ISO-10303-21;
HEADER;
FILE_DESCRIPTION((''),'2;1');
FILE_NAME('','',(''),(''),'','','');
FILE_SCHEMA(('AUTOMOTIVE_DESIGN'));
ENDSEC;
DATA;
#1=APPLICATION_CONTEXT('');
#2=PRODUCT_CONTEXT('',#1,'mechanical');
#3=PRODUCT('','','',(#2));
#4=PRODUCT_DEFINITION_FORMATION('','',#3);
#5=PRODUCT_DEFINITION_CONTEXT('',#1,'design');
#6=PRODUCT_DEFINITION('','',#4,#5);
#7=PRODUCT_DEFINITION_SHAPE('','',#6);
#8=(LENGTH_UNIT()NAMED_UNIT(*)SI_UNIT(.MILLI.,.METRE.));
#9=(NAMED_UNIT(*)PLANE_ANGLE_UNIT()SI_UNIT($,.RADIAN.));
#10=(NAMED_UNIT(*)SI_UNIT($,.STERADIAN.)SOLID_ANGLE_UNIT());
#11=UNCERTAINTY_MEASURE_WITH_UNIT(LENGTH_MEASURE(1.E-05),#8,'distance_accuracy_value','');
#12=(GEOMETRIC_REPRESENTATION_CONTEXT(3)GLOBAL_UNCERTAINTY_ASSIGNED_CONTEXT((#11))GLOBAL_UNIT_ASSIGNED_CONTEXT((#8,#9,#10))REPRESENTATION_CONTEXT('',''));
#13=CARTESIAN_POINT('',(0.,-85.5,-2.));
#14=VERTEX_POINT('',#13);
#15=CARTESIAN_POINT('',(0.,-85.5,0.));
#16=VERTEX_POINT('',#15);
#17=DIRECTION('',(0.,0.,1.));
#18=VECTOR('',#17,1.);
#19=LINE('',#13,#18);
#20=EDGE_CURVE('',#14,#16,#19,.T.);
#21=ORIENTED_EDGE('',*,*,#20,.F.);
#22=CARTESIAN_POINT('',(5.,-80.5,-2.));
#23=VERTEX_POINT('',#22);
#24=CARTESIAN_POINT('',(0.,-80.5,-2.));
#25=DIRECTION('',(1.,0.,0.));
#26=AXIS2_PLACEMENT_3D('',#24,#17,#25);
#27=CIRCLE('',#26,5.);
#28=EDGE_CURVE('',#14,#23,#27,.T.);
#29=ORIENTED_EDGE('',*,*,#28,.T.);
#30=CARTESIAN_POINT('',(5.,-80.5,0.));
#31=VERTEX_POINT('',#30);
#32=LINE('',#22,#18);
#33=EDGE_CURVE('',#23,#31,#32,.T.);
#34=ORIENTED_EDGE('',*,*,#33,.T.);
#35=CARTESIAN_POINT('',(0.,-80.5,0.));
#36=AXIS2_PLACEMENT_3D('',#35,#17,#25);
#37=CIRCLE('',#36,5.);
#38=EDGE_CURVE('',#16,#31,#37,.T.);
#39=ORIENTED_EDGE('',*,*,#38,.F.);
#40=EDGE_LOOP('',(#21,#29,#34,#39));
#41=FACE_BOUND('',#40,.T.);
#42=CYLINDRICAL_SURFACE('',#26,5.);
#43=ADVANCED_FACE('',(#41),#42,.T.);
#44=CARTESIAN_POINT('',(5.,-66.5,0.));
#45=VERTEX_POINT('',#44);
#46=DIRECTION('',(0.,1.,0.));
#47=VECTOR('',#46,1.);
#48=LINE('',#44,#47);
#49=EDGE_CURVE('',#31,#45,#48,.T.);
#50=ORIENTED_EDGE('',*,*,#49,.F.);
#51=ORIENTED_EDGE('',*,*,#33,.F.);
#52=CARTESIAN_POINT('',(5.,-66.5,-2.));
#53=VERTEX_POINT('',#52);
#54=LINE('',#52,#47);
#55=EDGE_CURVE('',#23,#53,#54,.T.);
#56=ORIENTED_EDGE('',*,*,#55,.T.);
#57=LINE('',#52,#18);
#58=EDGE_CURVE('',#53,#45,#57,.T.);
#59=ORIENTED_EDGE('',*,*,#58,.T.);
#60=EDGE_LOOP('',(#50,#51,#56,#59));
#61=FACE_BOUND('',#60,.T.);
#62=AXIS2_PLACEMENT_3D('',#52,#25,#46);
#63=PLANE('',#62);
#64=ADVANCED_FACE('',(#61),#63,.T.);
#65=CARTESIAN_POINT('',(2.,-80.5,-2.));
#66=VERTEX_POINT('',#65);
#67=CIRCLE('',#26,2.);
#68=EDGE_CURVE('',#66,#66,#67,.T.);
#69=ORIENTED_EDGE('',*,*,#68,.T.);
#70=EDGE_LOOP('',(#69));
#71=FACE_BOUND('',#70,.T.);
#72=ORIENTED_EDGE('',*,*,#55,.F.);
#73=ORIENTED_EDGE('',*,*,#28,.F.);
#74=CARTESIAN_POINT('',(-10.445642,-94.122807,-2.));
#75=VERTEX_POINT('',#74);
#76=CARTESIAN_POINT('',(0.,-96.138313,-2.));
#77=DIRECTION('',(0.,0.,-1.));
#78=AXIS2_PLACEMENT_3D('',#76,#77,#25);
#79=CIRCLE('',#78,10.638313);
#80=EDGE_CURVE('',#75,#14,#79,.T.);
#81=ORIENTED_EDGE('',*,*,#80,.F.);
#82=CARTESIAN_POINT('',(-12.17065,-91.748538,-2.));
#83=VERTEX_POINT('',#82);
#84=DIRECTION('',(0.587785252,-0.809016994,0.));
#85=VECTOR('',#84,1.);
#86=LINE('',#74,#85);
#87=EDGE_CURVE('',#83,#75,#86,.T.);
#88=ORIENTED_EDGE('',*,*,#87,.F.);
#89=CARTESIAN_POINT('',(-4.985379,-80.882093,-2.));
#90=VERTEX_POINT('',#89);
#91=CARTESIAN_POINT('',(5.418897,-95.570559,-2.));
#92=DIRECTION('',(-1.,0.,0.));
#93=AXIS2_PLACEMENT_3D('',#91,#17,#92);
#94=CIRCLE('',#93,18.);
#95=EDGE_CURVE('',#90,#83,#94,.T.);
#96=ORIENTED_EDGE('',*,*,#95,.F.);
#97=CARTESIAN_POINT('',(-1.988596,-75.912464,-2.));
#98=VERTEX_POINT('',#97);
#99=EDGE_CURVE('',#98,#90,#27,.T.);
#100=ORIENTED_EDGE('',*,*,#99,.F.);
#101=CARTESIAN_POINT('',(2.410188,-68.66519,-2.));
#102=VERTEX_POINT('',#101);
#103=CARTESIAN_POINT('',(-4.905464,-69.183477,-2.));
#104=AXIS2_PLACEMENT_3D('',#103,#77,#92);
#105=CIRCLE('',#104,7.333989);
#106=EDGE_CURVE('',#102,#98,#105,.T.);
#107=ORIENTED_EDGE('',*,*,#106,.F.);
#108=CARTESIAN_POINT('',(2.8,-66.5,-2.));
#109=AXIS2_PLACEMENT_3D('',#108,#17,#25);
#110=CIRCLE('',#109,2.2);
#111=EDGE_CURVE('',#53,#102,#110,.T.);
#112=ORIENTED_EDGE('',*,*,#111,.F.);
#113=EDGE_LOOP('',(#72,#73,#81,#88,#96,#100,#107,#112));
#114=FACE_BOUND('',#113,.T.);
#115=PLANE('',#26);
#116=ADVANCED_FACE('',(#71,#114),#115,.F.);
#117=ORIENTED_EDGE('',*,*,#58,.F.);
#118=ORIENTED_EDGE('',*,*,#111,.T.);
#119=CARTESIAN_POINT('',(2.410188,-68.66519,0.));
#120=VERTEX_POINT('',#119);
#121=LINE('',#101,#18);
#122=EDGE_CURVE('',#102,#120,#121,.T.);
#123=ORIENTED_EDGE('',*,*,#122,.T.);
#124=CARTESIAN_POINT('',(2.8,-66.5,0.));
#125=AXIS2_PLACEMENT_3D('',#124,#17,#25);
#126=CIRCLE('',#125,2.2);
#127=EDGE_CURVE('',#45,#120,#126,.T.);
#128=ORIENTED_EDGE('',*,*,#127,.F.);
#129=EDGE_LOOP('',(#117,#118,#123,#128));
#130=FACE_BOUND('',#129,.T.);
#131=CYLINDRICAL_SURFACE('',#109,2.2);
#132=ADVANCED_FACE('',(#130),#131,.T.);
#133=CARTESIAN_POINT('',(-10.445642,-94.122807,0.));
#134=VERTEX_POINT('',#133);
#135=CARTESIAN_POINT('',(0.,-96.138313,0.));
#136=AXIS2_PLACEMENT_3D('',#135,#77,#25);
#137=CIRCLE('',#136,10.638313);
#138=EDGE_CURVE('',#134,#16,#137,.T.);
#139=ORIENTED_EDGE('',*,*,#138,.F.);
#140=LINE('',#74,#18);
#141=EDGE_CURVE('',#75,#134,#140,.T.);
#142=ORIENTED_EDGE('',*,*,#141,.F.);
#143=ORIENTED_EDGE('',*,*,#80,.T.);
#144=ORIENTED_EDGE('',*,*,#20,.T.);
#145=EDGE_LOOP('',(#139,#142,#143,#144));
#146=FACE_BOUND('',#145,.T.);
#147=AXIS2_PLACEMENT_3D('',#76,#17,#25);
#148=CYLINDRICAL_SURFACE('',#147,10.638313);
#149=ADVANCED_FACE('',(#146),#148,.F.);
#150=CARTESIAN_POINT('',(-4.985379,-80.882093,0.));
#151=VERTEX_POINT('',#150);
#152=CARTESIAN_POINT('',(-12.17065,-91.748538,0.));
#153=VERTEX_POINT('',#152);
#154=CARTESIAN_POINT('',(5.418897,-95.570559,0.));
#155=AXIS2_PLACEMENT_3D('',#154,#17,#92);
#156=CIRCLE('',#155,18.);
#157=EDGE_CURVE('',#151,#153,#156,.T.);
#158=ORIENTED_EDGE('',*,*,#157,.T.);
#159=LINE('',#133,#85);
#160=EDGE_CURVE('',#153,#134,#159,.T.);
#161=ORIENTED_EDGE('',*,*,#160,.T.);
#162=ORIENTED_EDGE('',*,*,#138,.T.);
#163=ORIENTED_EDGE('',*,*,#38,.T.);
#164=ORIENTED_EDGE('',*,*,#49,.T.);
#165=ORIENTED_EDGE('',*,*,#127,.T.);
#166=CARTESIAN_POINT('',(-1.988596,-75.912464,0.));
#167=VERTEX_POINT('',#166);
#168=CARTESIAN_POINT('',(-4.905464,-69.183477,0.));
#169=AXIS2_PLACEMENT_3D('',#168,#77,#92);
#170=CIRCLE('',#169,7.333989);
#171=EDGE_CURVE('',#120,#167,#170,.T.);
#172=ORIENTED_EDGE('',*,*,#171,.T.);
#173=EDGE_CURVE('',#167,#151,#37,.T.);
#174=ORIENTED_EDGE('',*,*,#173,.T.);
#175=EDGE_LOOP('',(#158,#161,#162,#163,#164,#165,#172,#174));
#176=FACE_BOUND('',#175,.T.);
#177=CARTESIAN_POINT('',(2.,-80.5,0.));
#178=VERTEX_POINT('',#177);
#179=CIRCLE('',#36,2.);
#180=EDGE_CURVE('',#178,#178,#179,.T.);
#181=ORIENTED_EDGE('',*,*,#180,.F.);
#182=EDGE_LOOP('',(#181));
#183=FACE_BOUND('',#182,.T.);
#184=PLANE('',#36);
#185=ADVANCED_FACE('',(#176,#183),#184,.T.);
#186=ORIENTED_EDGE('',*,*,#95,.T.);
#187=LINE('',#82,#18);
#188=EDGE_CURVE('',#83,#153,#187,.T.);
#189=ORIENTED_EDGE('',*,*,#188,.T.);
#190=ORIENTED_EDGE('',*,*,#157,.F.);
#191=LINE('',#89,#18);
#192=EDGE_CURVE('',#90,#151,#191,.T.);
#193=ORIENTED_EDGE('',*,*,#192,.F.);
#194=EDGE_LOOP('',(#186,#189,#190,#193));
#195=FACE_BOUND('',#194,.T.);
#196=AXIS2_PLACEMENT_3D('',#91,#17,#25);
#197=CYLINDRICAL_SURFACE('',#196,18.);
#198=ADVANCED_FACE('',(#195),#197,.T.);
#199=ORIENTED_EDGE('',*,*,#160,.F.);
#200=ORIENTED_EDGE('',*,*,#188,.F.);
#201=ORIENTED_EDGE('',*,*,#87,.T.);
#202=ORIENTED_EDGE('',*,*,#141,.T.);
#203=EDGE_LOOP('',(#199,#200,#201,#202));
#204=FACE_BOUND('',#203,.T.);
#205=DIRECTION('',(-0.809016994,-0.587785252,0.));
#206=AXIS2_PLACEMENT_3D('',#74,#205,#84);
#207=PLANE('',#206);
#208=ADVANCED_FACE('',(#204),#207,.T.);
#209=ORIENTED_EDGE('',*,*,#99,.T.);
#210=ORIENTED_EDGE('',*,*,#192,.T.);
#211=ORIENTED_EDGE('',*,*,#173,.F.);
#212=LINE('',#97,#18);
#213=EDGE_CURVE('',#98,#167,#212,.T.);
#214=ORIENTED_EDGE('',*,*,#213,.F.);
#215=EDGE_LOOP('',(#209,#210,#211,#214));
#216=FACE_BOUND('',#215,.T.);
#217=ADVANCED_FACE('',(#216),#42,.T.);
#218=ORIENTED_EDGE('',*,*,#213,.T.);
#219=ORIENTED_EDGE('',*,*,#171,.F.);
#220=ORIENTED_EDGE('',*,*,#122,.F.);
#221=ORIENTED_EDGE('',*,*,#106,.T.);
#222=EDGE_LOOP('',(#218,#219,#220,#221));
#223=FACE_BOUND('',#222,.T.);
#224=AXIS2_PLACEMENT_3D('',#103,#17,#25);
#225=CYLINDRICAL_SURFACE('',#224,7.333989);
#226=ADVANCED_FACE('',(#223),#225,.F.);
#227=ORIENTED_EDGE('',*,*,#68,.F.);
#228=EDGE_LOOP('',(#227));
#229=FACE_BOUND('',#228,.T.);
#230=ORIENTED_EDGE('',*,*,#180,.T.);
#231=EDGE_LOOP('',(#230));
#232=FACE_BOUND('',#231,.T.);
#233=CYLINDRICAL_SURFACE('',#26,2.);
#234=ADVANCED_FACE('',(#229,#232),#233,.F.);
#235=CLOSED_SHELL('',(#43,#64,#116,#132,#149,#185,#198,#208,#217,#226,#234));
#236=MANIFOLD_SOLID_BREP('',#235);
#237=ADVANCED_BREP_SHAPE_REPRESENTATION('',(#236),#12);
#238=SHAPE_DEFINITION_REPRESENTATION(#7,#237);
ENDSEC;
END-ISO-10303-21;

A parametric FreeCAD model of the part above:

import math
import FreeCAD as App
import Part
import Sketcher

V = App.Vector
Q = App.Units.Quantity

doc = App.newDocument("Part")
params = doc.addObject("Spreadsheet::Sheet", "Params")
for row, (alias, value) in enumerate([
    ("sketch1_radius", "5 mm"),
    ("sketch1_radius2", "18 mm"),
    ("sketch1_radius3", "2.2 mm"),
    ("sketch1_height", "14 mm"),
    ("pad1_length", "2 mm"),
    ("sketch2_diameter", "4 mm"),
], start=1):
    params.set(f"A{row}", alias)
    params.set(f"B{row}", "=" + value)
    params.setAlias(f"B{row}", alias)

body = doc.addObject("PartDesign::Body", "Body")

# Sketch on XY plane
sketch1 = body.newObject("Sketcher::SketchObject", "Sketch")
sketch1.AttachmentSupport = (doc.getObject("XY_Plane"), [""])
sketch1.MapMode = "FlatFace"
sketch1.addGeometry(Part.LineSegment(V(-12.2, -91.7, 0), V(-10.4, -94.1, 0)), False)
sketch1.addGeometry(Part.ArcOfCircle(Part.Circle(V(0, -96.1, 0), V(0, 0, 1), 10.6), math.radians(90), math.radians(169)), False)
sketch1.addGeometry(Part.ArcOfCircle(Part.Circle(V(0, -80.5, 0), V(0, 0, 1), 5), math.radians(-90), math.radians(0)), False)
sketch1.addGeometry(Part.LineSegment(V(5, -80.5, 0), V(5, -66.5, 0)), False)
sketch1.addGeometry(Part.ArcOfCircle(Part.Circle(V(2.8, -66.5, 0), V(0, 0, 1), 2.2), math.radians(0), math.radians(260)), False)
sketch1.addGeometry(Part.ArcOfCircle(Part.Circle(V(-4.9, -69.2, 0), V(0, 0, 1), 7.3), math.radians(-67), math.radians(4)), False)
sketch1.addGeometry(Part.ArcOfCircle(Part.Circle(V(0, -80.5, 0), V(0, 0, 1), 5), math.radians(113), math.radians(184)), False)
sketch1.addGeometry(Part.ArcOfCircle(Part.Circle(V(5.4, -95.6, 0), V(0, 0, 1), 18), math.radians(125), math.radians(168)), False)
sketch1.addConstraint(Sketcher.Constraint("Coincident", 0, 2, 1, 2))
sketch1.addConstraint(Sketcher.Constraint("Tangent", 1, 1, 2, 1))
sketch1.addConstraint(Sketcher.Constraint("Tangent", 2, 2, 3, 1))
sketch1.addConstraint(Sketcher.Constraint("Tangent", 3, 2, 4, 1))
sketch1.addConstraint(Sketcher.Constraint("Coincident", 4, 2, 5, 2))
sketch1.addConstraint(Sketcher.Constraint("Tangent", 5, 1, 6, 1))
sketch1.addConstraint(Sketcher.Constraint("Coincident", 6, 2, 7, 1))
sketch1.addConstraint(Sketcher.Constraint("Coincident", 7, 2, 0, 1))
sketch1.addConstraint(Sketcher.Constraint("Vertical", 3))
sketch1.addConstraint(Sketcher.Constraint("Coincident", 6, 3, 2, 3))
sketch1.addConstraint(Sketcher.Constraint("Equal", 2, 6))
sketch1.addConstraint(Sketcher.Constraint("PointOnObject", 1, 3, -2))
sketch1.addConstraint(Sketcher.Constraint("PointOnObject", 2, 3, -2))
sketch1.addConstraint(Sketcher.Constraint("Radius", 2, Q("5 mm")))
sketch1.addConstraint(Sketcher.Constraint("Radius", 7, Q("18 mm")))
sketch1.addConstraint(Sketcher.Constraint("Radius", 4, Q("2.2 mm")))
sketch1.addConstraint(Sketcher.Constraint("DistanceY", 3, 1, 3, 2, Q("14 mm")))
sketch1.addConstraint(Sketcher.Constraint("Angle", 0, Q("-54 deg")))
sketch1.addConstraint(Sketcher.Constraint("DistanceY", 2, 3, -1, 1, Q("80.5 mm")))
sketch1.addConstraint(Sketcher.Constraint("Radius", 5, Q("7.333989 mm")))
sketch1.addConstraint(Sketcher.Constraint("Radius", 1, Q("10.638313 mm")))
sketch1.addConstraint(Sketcher.Constraint("Distance", 0, Q("2.934759 mm")))
sketch1.addConstraint(Sketcher.Constraint("DistanceY", 7, 3, -1, 1, Q("95.570559 mm")))
sketch1.addConstraint(Sketcher.Constraint("DistanceX", 0, 2, -1, 1, Q("10.445642 mm")))
sketch1.addConstraint(Sketcher.Constraint("DistanceX", -1, 1, 4, 2, Q("2.410188 mm")))
sketch1.setExpression("Constraints[13]", "Params.sketch1_radius")
sketch1.setExpression("Constraints[14]", "Params.sketch1_radius2")
sketch1.setExpression("Constraints[15]", "Params.sketch1_radius3")
sketch1.setExpression("Constraints[16]", "Params.sketch1_height")
pad1 = body.newObject("PartDesign::Pad", "Pad")
pad1.Profile = sketch1
pad1.setExpression("Length", "Params.pad1_length")
pad1.Reversed = True

# Sketch on XY plane
sketch2 = body.newObject("Sketcher::SketchObject", "Sketch001")
sketch2.AttachmentSupport = (doc.getObject("XY_Plane"), [""])
sketch2.MapMode = "FlatFace"
sketch2.addGeometry(Part.Circle(V(0, -80.5, 0), V(0, 0, 1), 2), False)
sketch2.addConstraint(Sketcher.Constraint("PointOnObject", 0, 3, -2))
sketch2.addConstraint(Sketcher.Constraint("Diameter", 0, Q("4 mm")))
sketch2.addConstraint(Sketcher.Constraint("DistanceY", 0, 3, -1, 1, Q("80.5 mm")))
sketch2.setExpression("Constraints[1]", "Params.sketch2_diameter")
pocket1 = body.newObject("PartDesign::Pocket", "Pocket")
pocket1.Profile = sketch2
pocket1.Type = "ThroughAll"

doc.recompute()
